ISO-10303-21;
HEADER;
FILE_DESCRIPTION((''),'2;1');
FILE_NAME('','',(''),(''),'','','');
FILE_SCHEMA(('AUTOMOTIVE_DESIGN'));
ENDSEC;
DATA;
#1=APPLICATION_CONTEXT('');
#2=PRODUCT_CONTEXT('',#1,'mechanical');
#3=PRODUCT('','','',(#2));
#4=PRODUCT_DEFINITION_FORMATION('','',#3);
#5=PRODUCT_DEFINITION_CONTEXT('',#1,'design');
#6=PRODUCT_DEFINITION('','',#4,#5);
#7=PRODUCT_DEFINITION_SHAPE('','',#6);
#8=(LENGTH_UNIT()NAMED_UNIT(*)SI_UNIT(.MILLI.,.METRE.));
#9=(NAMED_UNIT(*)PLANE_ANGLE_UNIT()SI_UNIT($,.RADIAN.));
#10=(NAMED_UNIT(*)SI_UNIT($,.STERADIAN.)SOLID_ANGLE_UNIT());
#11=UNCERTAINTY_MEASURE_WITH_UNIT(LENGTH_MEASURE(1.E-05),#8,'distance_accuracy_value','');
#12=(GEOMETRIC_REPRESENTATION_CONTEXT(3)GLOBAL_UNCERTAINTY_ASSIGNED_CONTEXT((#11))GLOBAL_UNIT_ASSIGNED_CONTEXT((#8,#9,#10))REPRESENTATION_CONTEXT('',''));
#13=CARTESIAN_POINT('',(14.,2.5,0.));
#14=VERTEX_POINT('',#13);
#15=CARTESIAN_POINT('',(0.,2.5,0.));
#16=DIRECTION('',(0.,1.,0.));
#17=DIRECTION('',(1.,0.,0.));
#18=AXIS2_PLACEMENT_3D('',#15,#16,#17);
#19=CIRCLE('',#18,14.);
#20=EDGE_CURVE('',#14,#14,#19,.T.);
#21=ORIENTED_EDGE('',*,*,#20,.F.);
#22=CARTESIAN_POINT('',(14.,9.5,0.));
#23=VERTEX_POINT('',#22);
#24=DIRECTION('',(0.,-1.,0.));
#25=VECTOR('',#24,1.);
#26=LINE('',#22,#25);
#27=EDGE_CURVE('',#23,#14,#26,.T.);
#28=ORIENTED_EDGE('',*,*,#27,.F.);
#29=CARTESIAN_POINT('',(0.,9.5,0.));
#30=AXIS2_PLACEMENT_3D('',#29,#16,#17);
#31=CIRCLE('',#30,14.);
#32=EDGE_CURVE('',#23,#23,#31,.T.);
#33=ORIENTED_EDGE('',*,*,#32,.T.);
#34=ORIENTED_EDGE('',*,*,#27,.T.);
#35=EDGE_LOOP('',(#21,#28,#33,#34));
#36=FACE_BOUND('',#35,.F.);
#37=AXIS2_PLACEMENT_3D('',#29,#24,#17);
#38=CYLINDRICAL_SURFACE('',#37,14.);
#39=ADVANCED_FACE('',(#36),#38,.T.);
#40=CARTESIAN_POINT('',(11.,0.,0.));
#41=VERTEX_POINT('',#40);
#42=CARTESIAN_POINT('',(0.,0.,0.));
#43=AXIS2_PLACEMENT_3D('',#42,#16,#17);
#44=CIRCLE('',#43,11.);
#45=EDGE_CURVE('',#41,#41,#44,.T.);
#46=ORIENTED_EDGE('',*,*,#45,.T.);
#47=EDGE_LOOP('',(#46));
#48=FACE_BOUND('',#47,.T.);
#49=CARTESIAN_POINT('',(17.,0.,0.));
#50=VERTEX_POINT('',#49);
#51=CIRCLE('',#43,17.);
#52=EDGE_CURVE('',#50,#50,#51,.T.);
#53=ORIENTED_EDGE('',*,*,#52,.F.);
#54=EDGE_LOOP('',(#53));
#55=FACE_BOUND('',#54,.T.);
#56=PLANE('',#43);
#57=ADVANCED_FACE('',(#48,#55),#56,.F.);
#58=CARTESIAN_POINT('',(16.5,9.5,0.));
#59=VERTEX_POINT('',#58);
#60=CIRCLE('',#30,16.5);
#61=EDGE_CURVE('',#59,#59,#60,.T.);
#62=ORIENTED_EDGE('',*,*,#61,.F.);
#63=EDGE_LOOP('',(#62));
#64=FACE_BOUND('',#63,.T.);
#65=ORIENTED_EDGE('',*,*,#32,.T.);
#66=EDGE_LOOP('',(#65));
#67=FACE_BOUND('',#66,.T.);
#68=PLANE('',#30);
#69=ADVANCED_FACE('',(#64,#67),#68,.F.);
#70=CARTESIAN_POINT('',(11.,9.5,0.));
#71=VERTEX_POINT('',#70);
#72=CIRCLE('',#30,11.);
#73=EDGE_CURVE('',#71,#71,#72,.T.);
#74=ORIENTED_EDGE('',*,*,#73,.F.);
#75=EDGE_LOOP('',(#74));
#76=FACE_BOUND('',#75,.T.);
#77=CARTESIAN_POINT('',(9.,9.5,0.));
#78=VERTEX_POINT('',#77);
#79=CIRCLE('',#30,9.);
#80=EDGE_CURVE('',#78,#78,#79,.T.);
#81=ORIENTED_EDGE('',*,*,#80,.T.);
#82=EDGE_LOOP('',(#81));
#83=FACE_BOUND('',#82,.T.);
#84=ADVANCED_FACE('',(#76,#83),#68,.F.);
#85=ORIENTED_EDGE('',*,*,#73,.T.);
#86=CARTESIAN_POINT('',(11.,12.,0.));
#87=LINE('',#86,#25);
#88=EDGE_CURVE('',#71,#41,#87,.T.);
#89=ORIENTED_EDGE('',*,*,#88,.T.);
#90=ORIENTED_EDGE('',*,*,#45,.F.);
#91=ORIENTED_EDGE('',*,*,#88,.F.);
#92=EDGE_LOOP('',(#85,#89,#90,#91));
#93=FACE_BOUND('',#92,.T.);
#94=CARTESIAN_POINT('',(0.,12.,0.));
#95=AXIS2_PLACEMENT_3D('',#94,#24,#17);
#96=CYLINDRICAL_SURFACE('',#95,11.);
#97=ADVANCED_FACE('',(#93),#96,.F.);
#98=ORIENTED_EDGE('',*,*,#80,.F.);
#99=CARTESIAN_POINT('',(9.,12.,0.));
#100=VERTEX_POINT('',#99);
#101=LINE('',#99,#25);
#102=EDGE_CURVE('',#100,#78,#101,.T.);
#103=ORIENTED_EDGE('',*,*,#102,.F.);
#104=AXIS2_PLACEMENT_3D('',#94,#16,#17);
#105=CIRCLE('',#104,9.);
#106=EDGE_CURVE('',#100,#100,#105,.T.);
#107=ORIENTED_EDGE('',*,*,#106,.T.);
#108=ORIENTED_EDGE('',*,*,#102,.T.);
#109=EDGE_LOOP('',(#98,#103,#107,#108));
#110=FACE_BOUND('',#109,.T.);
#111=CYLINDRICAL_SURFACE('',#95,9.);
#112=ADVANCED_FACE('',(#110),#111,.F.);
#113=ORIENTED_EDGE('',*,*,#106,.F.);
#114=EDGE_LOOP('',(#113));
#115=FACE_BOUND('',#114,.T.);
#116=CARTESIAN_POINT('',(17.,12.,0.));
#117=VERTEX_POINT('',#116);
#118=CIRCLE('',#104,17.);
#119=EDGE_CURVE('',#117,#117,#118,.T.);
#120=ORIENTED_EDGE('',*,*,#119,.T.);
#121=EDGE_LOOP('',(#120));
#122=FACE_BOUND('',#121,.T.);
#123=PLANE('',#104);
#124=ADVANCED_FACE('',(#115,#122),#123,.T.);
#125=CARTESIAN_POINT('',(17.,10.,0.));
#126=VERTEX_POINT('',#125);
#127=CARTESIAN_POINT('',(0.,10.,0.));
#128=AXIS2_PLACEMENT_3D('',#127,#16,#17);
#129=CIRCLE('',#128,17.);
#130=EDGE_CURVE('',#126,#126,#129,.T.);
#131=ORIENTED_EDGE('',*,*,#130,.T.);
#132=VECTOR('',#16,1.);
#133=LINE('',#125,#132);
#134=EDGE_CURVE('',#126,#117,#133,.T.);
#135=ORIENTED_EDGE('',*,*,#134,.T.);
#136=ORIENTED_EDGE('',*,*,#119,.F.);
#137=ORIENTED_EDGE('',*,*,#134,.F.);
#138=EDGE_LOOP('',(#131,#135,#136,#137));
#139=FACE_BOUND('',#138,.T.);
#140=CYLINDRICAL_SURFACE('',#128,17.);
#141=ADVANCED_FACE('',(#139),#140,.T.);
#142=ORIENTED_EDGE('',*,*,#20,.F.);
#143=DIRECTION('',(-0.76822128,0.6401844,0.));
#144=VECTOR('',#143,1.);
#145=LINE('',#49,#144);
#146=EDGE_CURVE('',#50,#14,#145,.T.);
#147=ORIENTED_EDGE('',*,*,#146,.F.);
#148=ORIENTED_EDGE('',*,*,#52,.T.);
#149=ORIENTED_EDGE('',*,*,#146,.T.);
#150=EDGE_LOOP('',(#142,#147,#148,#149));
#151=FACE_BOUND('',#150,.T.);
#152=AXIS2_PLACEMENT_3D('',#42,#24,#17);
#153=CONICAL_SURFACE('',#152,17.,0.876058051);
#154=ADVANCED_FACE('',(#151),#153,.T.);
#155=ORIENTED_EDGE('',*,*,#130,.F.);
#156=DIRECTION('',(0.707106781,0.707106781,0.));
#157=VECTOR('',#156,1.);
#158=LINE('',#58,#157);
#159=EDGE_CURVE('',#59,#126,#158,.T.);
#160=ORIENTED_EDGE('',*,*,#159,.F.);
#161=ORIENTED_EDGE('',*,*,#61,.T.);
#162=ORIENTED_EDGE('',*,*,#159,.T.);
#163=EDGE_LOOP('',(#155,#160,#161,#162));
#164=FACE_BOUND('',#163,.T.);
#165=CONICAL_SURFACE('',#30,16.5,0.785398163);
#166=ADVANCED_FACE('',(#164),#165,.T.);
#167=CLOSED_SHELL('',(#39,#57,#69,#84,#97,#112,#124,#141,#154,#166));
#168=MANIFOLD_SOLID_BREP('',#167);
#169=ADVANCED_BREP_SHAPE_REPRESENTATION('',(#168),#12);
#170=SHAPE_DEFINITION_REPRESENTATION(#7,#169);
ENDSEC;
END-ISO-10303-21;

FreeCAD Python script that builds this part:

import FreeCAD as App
import Part
import Sketcher

doc = App.newDocument("Part")
body = doc.addObject("PartDesign::Body", "Body")

sketch1 = doc.addObject("Sketcher::SketchObject", "Sketch")
body.addObject(sketch1)
sketch1.AttachmentSupport = (doc.XY_Plane, [""])
sketch1.MapMode = "FlatFace"
sketch1.addGeometry(Part.LineSegment(App.Vector(11, 9.5, 0), App.Vector(11, 0, 0)), False)
sketch1.addGeometry(Part.LineSegment(App.Vector(11, 0, 0), App.Vector(17, 0, 0)), False)
sketch1.addGeometry(Part.LineSegment(App.Vector(17, 0, 0), App.Vector(14, 2.5, 0)), False)
sketch1.addGeometry(Part.LineSegment(App.Vector(14, 2.5, 0), App.Vector(14, 9.5, 0)), False)
sketch1.addGeometry(Part.LineSegment(App.Vector(14, 9.5, 0), App.Vector(16.5, 9.5, 0)), False)
sketch1.addGeometry(Part.LineSegment(App.Vector(16.5, 9.5, 0), App.Vector(17, 10, 0)), False)
sketch1.addGeometry(Part.LineSegment(App.Vector(17, 10, 0), App.Vector(17, 12, 0)), False)
sketch1.addGeometry(Part.LineSegment(App.Vector(17, 12, 0), App.Vector(9, 12, 0)), False)
sketch1.addGeometry(Part.LineSegment(App.Vector(9, 12, 0), App.Vector(9, 9.5, 0)), False)
sketch1.addGeometry(Part.LineSegment(App.Vector(9, 9.5, 0), App.Vector(11, 9.5, 0)), False)
sketch1.addConstraint(Sketcher.Constraint("Coincident", 0, 2, 1, 1))
sketch1.addConstraint(Sketcher.Constraint("Coincident", 1, 2, 2, 1))
sketch1.addConstraint(Sketcher.Constraint("Coincident", 2, 2, 3, 1))
sketch1.addConstraint(Sketcher.Constraint("Coincident", 3, 2, 4, 1))
sketch1.addConstraint(Sketcher.Constraint("Coincident", 4, 2, 5, 1))
sketch1.addConstraint(Sketcher.Constraint("Coincident", 5, 2, 6, 1))
sketch1.addConstraint(Sketcher.Constraint("Coincident", 6, 2, 7, 1))
sketch1.addConstraint(Sketcher.Constraint("Coincident", 7, 2, 8, 1))
sketch1.addConstraint(Sketcher.Constraint("Coincident", 8, 2, 9, 1))
sketch1.addConstraint(Sketcher.Constraint("Coincident", 9, 2, 0, 1))
sketch1.addConstraint(Sketcher.Constraint("Vertical", 0))
sketch1.addConstraint(Sketcher.Constraint("Horizontal", 1))
sketch1.addConstraint(Sketcher.Constraint("Vertical", 3))
sketch1.addConstraint(Sketcher.Constraint("Horizontal", 4))
sketch1.addConstraint(Sketcher.Constraint("Vertical", 6))
sketch1.addConstraint(Sketcher.Constraint("Horizontal", 7))
sketch1.addConstraint(Sketcher.Constraint("Vertical", 8))
sketch1.addConstraint(Sketcher.Constraint("Horizontal", 9))
sketch1.addConstraint(Sketcher.Constraint("PointOnObject", 0, 2, -1))
sketch1.addConstraint(Sketcher.Constraint("Horizontal", 4, 2, 8, 2))
sketch1.addConstraint(Sketcher.Constraint("Vertical", 1, 2, 5, 2))
sketch1.addConstraint(Sketcher.Constraint("Equal", 9, 6))
sketch1.addConstraint(Sketcher.Constraint("Equal", 4, 8))
sketch1.addConstraint(Sketcher.Constraint("DistanceX", 1, 1, 1, 2, 6.0))
sketch1.addConstraint(Sketcher.Constraint("DistanceX", 9, 1, 9, 2, 2.0))
sketch1.addConstraint(Sketcher.Constraint("DistanceY", 3, 1, 3, 2, 7.0))
sketch1.addConstraint(Sketcher.Constraint("DistanceX", 4, 1, 4, 2, 2.5))
sketch1.addConstraint(Sketcher.Constraint("DistanceX", -1, 1, 0, 2, 11.0))
sketch1.addConstraint(Sketcher.Constraint("DistanceY", -1, 1, 6, 2, 12.0))
sketch1.addConstraint(Sketcher.Constraint("DistanceX", 0, 2, 2, 2, 3.0))
revolution = doc.addObject("PartDesign::Revolution", "Revolution")
body.addObject(revolution)
revolution.Profile = sketch1
revolution.ReferenceAxis = (sketch1, ["V_Axis"])
revolution.Angle = 360

doc.recompute()
